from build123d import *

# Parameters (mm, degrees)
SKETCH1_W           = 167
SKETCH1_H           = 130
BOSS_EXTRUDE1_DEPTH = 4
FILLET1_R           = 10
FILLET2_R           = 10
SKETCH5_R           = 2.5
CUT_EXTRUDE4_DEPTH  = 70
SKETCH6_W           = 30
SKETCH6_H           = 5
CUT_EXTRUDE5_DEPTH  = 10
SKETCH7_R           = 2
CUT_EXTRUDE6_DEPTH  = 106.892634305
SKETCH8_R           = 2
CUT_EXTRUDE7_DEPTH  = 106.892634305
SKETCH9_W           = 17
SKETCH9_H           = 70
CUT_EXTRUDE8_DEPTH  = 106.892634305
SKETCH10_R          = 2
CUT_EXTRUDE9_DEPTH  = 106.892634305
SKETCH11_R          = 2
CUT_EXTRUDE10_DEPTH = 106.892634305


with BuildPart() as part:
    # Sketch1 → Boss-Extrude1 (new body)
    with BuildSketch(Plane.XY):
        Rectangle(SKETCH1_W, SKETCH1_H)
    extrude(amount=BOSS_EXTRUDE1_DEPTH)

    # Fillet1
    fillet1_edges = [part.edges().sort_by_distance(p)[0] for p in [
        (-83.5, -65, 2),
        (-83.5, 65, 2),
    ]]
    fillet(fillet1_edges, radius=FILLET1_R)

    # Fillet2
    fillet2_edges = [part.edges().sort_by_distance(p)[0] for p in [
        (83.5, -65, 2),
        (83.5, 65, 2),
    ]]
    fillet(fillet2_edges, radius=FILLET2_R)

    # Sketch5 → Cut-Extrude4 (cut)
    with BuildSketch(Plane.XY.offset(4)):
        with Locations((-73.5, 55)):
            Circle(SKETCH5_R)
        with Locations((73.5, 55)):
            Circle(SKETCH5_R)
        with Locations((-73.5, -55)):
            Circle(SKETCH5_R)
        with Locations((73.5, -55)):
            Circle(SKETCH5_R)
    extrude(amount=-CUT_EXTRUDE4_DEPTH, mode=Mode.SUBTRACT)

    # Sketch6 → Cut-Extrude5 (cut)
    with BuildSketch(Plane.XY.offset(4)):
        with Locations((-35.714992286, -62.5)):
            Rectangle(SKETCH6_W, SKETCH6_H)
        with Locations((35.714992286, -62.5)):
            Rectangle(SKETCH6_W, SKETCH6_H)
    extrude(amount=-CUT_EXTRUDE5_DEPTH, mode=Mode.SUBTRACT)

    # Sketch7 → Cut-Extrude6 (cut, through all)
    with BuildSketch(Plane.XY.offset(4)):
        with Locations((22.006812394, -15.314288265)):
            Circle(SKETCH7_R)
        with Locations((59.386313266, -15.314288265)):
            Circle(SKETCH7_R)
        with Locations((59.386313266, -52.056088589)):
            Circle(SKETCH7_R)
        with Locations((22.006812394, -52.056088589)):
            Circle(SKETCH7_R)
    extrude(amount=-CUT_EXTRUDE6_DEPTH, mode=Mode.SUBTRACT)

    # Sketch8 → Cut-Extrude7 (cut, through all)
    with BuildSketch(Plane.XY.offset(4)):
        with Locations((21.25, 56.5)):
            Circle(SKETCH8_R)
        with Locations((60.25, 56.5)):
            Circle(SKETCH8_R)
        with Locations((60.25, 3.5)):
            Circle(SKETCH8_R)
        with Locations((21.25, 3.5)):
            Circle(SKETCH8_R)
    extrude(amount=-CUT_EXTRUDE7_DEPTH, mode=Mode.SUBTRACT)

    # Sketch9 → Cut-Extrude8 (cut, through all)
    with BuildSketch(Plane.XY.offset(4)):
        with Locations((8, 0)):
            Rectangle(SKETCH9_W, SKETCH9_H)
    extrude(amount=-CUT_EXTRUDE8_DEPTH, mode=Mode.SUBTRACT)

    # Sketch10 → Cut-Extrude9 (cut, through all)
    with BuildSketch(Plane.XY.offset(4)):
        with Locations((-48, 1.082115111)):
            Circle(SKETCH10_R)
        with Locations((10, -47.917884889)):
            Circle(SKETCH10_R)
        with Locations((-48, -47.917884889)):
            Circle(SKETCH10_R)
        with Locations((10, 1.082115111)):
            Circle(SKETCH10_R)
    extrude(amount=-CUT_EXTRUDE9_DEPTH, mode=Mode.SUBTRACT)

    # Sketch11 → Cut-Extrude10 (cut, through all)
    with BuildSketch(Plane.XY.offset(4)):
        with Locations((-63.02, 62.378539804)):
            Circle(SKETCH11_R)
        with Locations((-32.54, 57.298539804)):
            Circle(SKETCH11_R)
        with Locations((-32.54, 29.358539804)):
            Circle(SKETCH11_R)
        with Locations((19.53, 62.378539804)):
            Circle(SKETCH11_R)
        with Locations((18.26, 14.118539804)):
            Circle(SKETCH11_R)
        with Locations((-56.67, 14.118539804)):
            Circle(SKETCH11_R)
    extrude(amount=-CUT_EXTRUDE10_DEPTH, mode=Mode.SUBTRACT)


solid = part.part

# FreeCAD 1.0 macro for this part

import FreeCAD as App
import Part
import Sketcher

V = App.Vector


def edges_at(feature, points):
    """Names of the edges that pass closest to the given points."""
    edges = feature.Shape.Edges
    near = lambda p: min(range(len(edges)), key=lambda i: edges[i].distToShape(Part.Vertex(*p))[0])
    return sorted({f"Edge{near(p) + 1}" for p in points})


def add_polygon(sketch, points):
    """Adds a closed chain of lines whose ends are joined by coincident constraints."""
    first, n = sketch.GeometryCount, len(points)
    for a, b in zip(points, points[1:] + points[:1]):
        sketch.addGeometry(Part.LineSegment(App.Vector(*a, 0), App.Vector(*b, 0)), False)
    for i in range(n):
        sketch.addConstraint(Sketcher.Constraint("Coincident", first + i, 2, first + (i + 1) % n, 1))

doc = App.newDocument("Part")
params = doc.addObject("Spreadsheet::Sheet", "Params")
for row, (alias, value) in enumerate([
    ("sketch1_width", "167 mm"),
    ("sketch1_height", "130 mm"),
    ("pad1_length", "4 mm"),
    ("fillet_radius", "10 mm"),
    ("fillet2_radius", "10 mm"),
    ("sketch2_diameter", "5 mm"),
    ("pocket1_length", "70 mm"),
    ("sketch3_width", "30 mm"),
    ("sketch3_height", "5 mm"),
    ("pocket2_length", "10 mm"),
    ("sketch4_diameter", "4 mm"),
    ("sketch5_diameter", "4 mm"),
    ("sketch6_width", "17 mm"),
    ("sketch6_height", "70 mm"),
    ("sketch7_diameter", "4 mm"),
    ("sketch8_diameter", "4 mm"),
], start=1):
    params.set(f"A{row}", alias)
    params.set(f"B{row}", "=" + value)
    params.setAlias(f"B{row}", alias)

body = doc.addObject("PartDesign::Body", "Body")

# Sketch on XY plane
sketch1 = body.newObject("Sketcher::SketchObject", "Sketch")
sketch1.AttachmentSupport = (doc.getObject("XY_Plane"), [""])
sketch1.MapMode = "FlatFace"
add_polygon(sketch1, [(-84, 65), (-84, -65), (84, -65), (84, 65)])  # lines 0-3
sketch1.addConstraint(Sketcher.Constraint("Vertical", 0))
sketch1.addConstraint(Sketcher.Constraint("Horizontal", 1))
sketch1.addConstraint(Sketcher.Constraint("Vertical", 2))
sketch1.addConstraint(Sketcher.Constraint("Horizontal", 3))
sketch1.addConstraint(Sketcher.Constraint("Symmetric", 0, 2, 2, 2, -1, 1))
sketch1.addConstraint(Sketcher.Constraint("DistanceX", 1, 1, 1, 2, 167.0))
sketch1.addConstraint(Sketcher.Constraint("DistanceY", 0, 2, 0, 1, 130.0))
sketch1.setExpression("Constraints[9]", "Params.sketch1_width")
sketch1.setExpression("Constraints[10]", "Params.sketch1_height")
pad1 = body.newObject("PartDesign::Pad", "Pad")
pad1.Profile = sketch1
pad1.setExpression("Length", "Params.pad1_length")
doc.recompute()

fillet = body.newObject("PartDesign::Fillet", "Fillet")
fillet.Base = (pad1, edges_at(pad1, [(-83.5, -65, 2), (-83.5, 65, 2)]))
fillet.setExpression("Radius", "Params.fillet_radius")
doc.recompute()

fillet2 = body.newObject("PartDesign::Fillet", "Fillet001")
fillet2.Base = (fillet, edges_at(fillet, [(83.5, -65, 2), (83.5, 65, 2)]))
fillet2.setExpression("Radius", "Params.fillet2_radius")

# Sketch on XY plane
sketch2 = body.newObject("Sketcher::SketchObject", "Sketch001")
sketch2.AttachmentSupport = (doc.getObject("XY_Plane"), [""])
sketch2.MapMode = "FlatFace"
sketch2.AttachmentOffset = App.Placement(V(0, 0, 4), App.Rotation())
sketch2.addGeometry(Part.Circle(V(-73.5, 55, 0), V(0, 0, 1), 2.5), False)
sketch2.addGeometry(Part.Circle(V(73.5, 55, 0), V(0, 0, 1), 2.5), False)
sketch2.addGeometry(Part.Circle(V(-73.5, -55, 0), V(0, 0, 1), 2.5), False)
sketch2.addGeometry(Part.Circle(V(73.5, -55, 0), V(0, 0, 1), 2.5), False)
sketch2.addConstraint(Sketcher.Constraint("Equal", 0, 1))
sketch2.addConstraint(Sketcher.Constraint("Equal", 1, 2))
sketch2.addConstraint(Sketcher.Constraint("Equal", 2, 3))
sketch2.addConstraint(Sketcher.Constraint("Symmetric", 1, 3, 2, 3, -1, 1))
sketch2.addConstraint(Sketcher.Constraint("Symmetric", 0, 3, 3, 3, -1, 1))
sketch2.addConstraint(Sketcher.Constraint("Symmetric", 0, 3, 1, 3, -2))
sketch2.addConstraint(Sketcher.Constraint("Diameter", 0, 5.0))
sketch2.addConstraint(Sketcher.Constraint("DistanceY", -1, 1, 0, 3, 55.0))
sketch2.addConstraint(Sketcher.Constraint("DistanceX", 0, 3, 1, 3, 147.0))
sketch2.setExpression("Constraints[6]", "Params.sketch2_diameter")
pocket1 = body.newObject("PartDesign::Pocket", "Pocket")
pocket1.Profile = sketch2
pocket1.setExpression("Length", "Params.pocket1_length")

# Sketch on XY plane
sketch3 = body.newObject("Sketcher::SketchObject", "Sketch002")
sketch3.AttachmentSupport = (doc.getObject("XY_Plane"), [""])
sketch3.MapMode = "FlatFace"
sketch3.AttachmentOffset = App.Placement(V(0, 0, 4), App.Rotation())
add_polygon(sketch3, [(-51, -60), (-51, -65), (-21, -65), (-21, -60)])  # lines 0-3
add_polygon(sketch3, [(21, -60), (21, -65), (51, -65), (51, -60)])  # lines 4-7
sketch3.addConstraint(Sketcher.Constraint("Vertical", 0))
sketch3.addConstraint(Sketcher.Constraint("Horizontal", 1))
sketch3.addConstraint(Sketcher.Constraint("Vertical", 2))
sketch3.addConstraint(Sketcher.Constraint("Horizontal", 3))
sketch3.addConstraint(Sketcher.Constraint("Vertical", 4))
sketch3.addConstraint(Sketcher.Constraint("Horizontal", 5))
sketch3.addConstraint(Sketcher.Constraint("Vertical", 6))
sketch3.addConstraint(Sketcher.Constraint("Horizontal", 7))
sketch3.addConstraint(Sketcher.Constraint("Symmetric", 1, 2, 4, 2, -2))
sketch3.addConstraint(Sketcher.Constraint("Symmetric", 3, 2, 6, 2, -2))
sketch3.addConstraint(Sketcher.Constraint("DistanceX", 1, 1, 1, 2, 30.0))
sketch3.addConstraint(Sketcher.Constraint("DistanceY", 0, 2, 0, 1, 5.0))
sketch3.addConstraint(Sketcher.Constraint("DistanceY", 0, 2, -1, 1, 65.0))
sketch3.addConstraint(Sketcher.Constraint("DistanceX", 0, 2, -1, 1, 50.714992))
sketch3.setExpression("Constraints[18]", "Params.sketch3_width")
sketch3.setExpression("Constraints[19]", "Params.sketch3_height")
pocket2 = body.newObject("PartDesign::Pocket", "Pocket001")
pocket2.Profile = sketch3
pocket2.setExpression("Length", "Params.pocket2_length")

# Sketch on XY plane
sketch4 = body.newObject("Sketcher::SketchObject", "Sketch003")
sketch4.AttachmentSupport = (doc.getObject("XY_Plane"), [""])
sketch4.MapMode = "FlatFace"
sketch4.AttachmentOffset = App.Placement(V(0, 0, 4), App.Rotation())
sketch4.addGeometry(Part.Circle(V(22, -15.3, 0), V(0, 0, 1), 2), False)
sketch4.addGeometry(Part.Circle(V(59.4, -15.3, 0), V(0, 0, 1), 2), False)
sketch4.addGeometry(Part.Circle(V(59.4, -52.1, 0), V(0, 0, 1), 2), False)
sketch4.addGeometry(Part.Circle(V(22, -52.1, 0), V(0, 0, 1), 2), False)
sketch4.addConstraint(Sketcher.Constraint("Equal", 0, 1))
sketch4.addConstraint(Sketcher.Constraint("Equal", 1, 2))
sketch4.addConstraint(Sketcher.Constraint("Equal", 2, 3))
sketch4.addConstraint(Sketcher.Constraint("Horizontal", 0, 3, 1, 3))
sketch4.addConstraint(Sketcher.Constraint("Horizontal", 2, 3, 3, 3))
sketch4.addConstraint(Sketcher.Constraint("Vertical", 1, 3, 2, 3))
sketch4.addConstraint(Sketcher.Constraint("Vertical", 0, 3, 3, 3))
sketch4.addConstraint(Sketcher.Constraint("Diameter", 0, 4.0))
sketch4.addConstraint(Sketcher.Constraint("DistanceX", 0, 3, 1, 3, 37.379501))
sketch4.addConstraint(Sketcher.Constraint("DistanceY", 2, 3, 1, 3, 36.7418))
sketch4.addConstraint(Sketcher.Constraint("DistanceY", 0, 3, -1, 1, 15.314288))
sketch4.addConstraint(Sketcher.Constraint("DistanceX", -1, 1, 0, 3, 22.006812))
sketch4.setExpression("Constraints[7]", "Params.sketch4_diameter")
pocket3 = body.newObject("PartDesign::Pocket", "Pocket002")
pocket3.Profile = sketch4
pocket3.Type = "ThroughAll"

# Sketch on XY plane
sketch5 = body.newObject("Sketcher::SketchObject", "Sketch004")
sketch5.AttachmentSupport = (doc.getObject("XY_Plane"), [""])
sketch5.MapMode = "FlatFace"
sketch5.AttachmentOffset = App.Placement(V(0, 0, 4), App.Rotation())
sketch5.addGeometry(Part.Circle(V(21.2, 56.5, 0), V(0, 0, 1), 2), False)
sketch5.addGeometry(Part.Circle(V(60.2, 56.5, 0), V(0, 0, 1), 2), False)
sketch5.addGeometry(Part.Circle(V(60.2, 3.5, 0), V(0, 0, 1), 2), False)
sketch5.addGeometry(Part.Circle(V(21.2, 3.5, 0), V(0, 0, 1), 2), False)
sketch5.addConstraint(Sketcher.Constraint("Equal", 0, 1))
sketch5.addConstraint(Sketcher.Constraint("Equal", 1, 2))
sketch5.addConstraint(Sketcher.Constraint("Equal", 2, 3))
sketch5.addConstraint(Sketcher.Constraint("Horizontal", 0, 3, 1, 3))
sketch5.addConstraint(Sketcher.Constraint("Horizontal", 2, 3, 3, 3))
sketch5.addConstraint(Sketcher.Constraint("Vertical", 1, 3, 2, 3))
sketch5.addConstraint(Sketcher.Constraint("Vertical", 0, 3, 3, 3))
sketch5.addConstraint(Sketcher.Constraint("Diameter", 0, 4.0))
sketch5.addConstraint(Sketcher.Constraint("DistanceX", 0, 3, 1, 3, 39.0))
sketch5.addConstraint(Sketcher.Constraint("DistanceY", 2, 3, 1, 3, 53.0))
sketch5.addConstraint(Sketcher.Constraint("DistanceY", -1, 1, 0, 3, 56.5))
sketch5.addConstraint(Sketcher.Constraint("DistanceX", -1, 1, 0, 3, 21.25))
sketch5.setExpression("Constraints[7]", "Params.sketch5_diameter")
pocket4 = body.newObject("PartDesign::Pocket", "Pocket003")
pocket4.Profile = sketch5
pocket4.Type = "ThroughAll"

# Sketch on XY plane
sketch6 = body.newObject("Sketcher::SketchObject", "Sketch005")
sketch6.AttachmentSupport = (doc.getObject("XY_Plane"), [""])
sketch6.MapMode = "FlatFace"
sketch6.AttachmentOffset = App.Placement(V(0, 0, 4), App.Rotation())
add_polygon(sketch6, [(0, 35), (0, -35), (16, -35), (16, 35)])  # lines 0-3
sketch6.addConstraint(Sketcher.Constraint("Vertical", 0))
sketch6.addConstraint(Sketcher.Constraint("Horizontal", 1))
sketch6.addConstraint(Sketcher.Constraint("Vertical", 2))
sketch6.addConstraint(Sketcher.Constraint("Horizontal", 3))
sketch6.addConstraint(Sketcher.Constraint("DistanceX", 1, 1, 1, 2, 17.0))
sketch6.addConstraint(Sketcher.Constraint("DistanceY", 0, 2, 0, 1, 70.0))
sketch6.addConstraint(Sketcher.Constraint("DistanceY", 0, 2, -1, 1, 35.0))
sketch6.addConstraint(Sketcher.Constraint("DistanceX", 0, 2, -1, 1, 0.5))
sketch6.setExpression("Constraints[8]", "Params.sketch6_width")
sketch6.setExpression("Constraints[9]", "Params.sketch6_height")
pocket5 = body.newObject("PartDesign::Pocket", "Pocket004")
pocket5.Profile = sketch6
pocket5.Type = "ThroughAll"

# Sketch on XY plane
sketch7 = body.newObject("Sketcher::SketchObject", "Sketch006")
sketch7.AttachmentSupport = (doc.getObject("XY_Plane"), [""])
sketch7.MapMode = "FlatFace"
sketch7.AttachmentOffset = App.Placement(V(0, 0, 4), App.Rotation())
sketch7.addGeometry(Part.Circle(V(-48, 1.1, 0), V(0, 0, 1), 2), False)
sketch7.addGeometry(Part.Circle(V(10, -47.9, 0), V(0, 0, 1), 2), False)
sketch7.addGeometry(Part.Circle(V(-48, -47.9, 0), V(0, 0, 1), 2), False)
sketch7.addGeometry(Part.Circle(V(10, 1.1, 0), V(0, 0, 1), 2), False)
sketch7.addConstraint(Sketcher.Constraint("Equal", 0, 1))
sketch7.addConstraint(Sketcher.Constraint("Equal", 1, 2))
sketch7.addConstraint(Sketcher.Constraint("Equal", 2, 3))
sketch7.addConstraint(Sketcher.Constraint("Horizontal", 1, 3, 2, 3))
sketch7.addConstraint(Sketcher.Constraint("Horizontal", 0, 3, 3, 3))
sketch7.addConstraint(Sketcher.Constraint("Vertical", 0, 3, 2, 3))
sketch7.addConstraint(Sketcher.Constraint("Vertical", 1, 3, 3, 3))
sketch7.addConstraint(Sketcher.Constraint("Diameter", 0, 4.0))
sketch7.addConstraint(Sketcher.Constraint("DistanceX", 0, 3, -1, 1, 48.0))
sketch7.addConstraint(Sketcher.Constraint("DistanceX", -1, 1, 1, 3, 10.0))
sketch7.addConstraint(Sketcher.Constraint("DistanceY", 1, 3, 0, 3, 49.0))
sketch7.addConstraint(Sketcher.Constraint("DistanceY", -1, 1, 0, 3, 1.082115))
sketch7.setExpression("Constraints[7]", "Params.sketch7_diameter")
pocket6 = body.newObject("PartDesign::Pocket", "Pocket005")
pocket6.Profile = sketch7
pocket6.Type = "ThroughAll"

# Sketch on XY plane
sketch8 = body.newObject("Sketcher::SketchObject", "Sketch007")
sketch8.AttachmentSupport = (doc.getObject("XY_Plane"), [""])
sketch8.MapMode = "FlatFace"
sketch8.AttachmentOffset = App.Placement(V(0, 0, 4), App.Rotation())
sketch8.addGeometry(Part.Circle(V(-63, 62.4, 0), V(0, 0, 1), 2), False)
sketch8.addGeometry(Part.Circle(V(-32.5, 57.3, 0), V(0, 0, 1), 2), False)
sketch8.addGeometry(Part.Circle(V(-32.5, 29.4, 0), V(0, 0, 1), 2), False)
sketch8.addGeometry(Part.Circle(V(19.5, 62.4, 0), V(0, 0, 1), 2), False)
sketch8.addGeometry(Part.Circle(V(18.3, 14.1, 0), V(0, 0, 1), 2), False)
sketch8.addGeometry(Part.Circle(V(-56.7, 14.1, 0), V(0, 0, 1), 2), False)
sketch8.addConstraint(Sketcher.Constraint("Equal", 0, 1))
sketch8.addConstraint(Sketcher.Constraint("Equal", 1, 2))
sketch8.addConstraint(Sketcher.Constraint("Equal", 2, 3))
sketch8.addConstraint(Sketcher.Constraint("Equal", 3, 4))
sketch8.addConstraint(Sketcher.Constraint("Equal", 4, 5))
sketch8.addConstraint(Sketcher.Constraint("Horizontal", 0, 3, 3, 3))
sketch8.addConstraint(Sketcher.Constraint("Horizontal", 4, 3, 5, 3))
sketch8.addConstraint(Sketcher.Constraint("Vertical", 1, 3, 2, 3))
sketch8.addConstraint(Sketcher.Constraint("Diameter", 0, 4.0))
sketch8.addConstraint(Sketcher.Constraint("DistanceX", 2, 3, 4, 3, 50.8))
sketch8.addConstraint(Sketcher.Constraint("DistanceX", 5, 3, 3, 3, 76.2))
sketch8.addConstraint(Sketcher.Constraint("DistanceX", 0, 3, -1, 1, 63.02))
sketch8.addConstraint(Sketcher.Constraint("DistanceX", 1, 3, -1, 1, 32.54))
sketch8.addConstraint(Sketcher.Constraint("DistanceX", -1, 1, 3, 3, 19.53))
sketch8.addConstraint(Sketcher.Constraint("DistanceY", 1, 3, 0, 3, 5.08))
sketch8.addConstraint(Sketcher.Constraint("DistanceY", 2, 3, 1, 3, 27.94))
sketch8.addConstraint(Sketcher.Constraint("DistanceY", 4, 3, 3, 3, 48.26))
sketch8.addConstraint(Sketcher.Constraint("DistanceY", -1, 1, 0, 3, 62.37854))
sketch8.setExpression("Constraints[8]", "Params.sketch8_diameter")
pocket7 = body.newObject("PartDesign::Pocket", "Pocket006")
pocket7.Profile = sketch8
pocket7.Type = "ThroughAll"

doc.recompute()
